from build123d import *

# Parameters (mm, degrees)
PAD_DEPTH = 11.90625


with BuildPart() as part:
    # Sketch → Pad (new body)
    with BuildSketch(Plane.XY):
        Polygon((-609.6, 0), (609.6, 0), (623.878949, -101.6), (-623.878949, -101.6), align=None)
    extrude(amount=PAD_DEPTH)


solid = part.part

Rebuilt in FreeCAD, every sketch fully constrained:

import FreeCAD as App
import Part
import Sketcher
from FreeCAD import Vector
Q = App.Units.Quantity


def add_polygon(sketch, points):
    """Adds a closed chain of lines whose ends are joined by coincident constraints."""
    first, n = sketch.GeometryCount, len(points)
    for a, b in zip(points, points[1:] + points[:1]):
        sketch.addGeometry(Part.LineSegment(App.Vector(*a, 0), App.Vector(*b, 0)), False)
    for i in range(n):
        sketch.addConstraint(Sketcher.Constraint("Coincident", first + i, 2, first + (i + 1) % n, 1))

doc = App.newDocument("Part")
body = doc.addObject("PartDesign::Body", "Body")

# Sketch on XY plane
sketch1 = body.newObject("Sketcher::SketchObject", "Sketch")
sketch1.AttachmentSupport = (doc.getObject("XY_Plane"), [""])
sketch1.MapMode = "FlatFace"
add_polygon(sketch1, [(609.6, 0), (-609.6, 0), (-623.878949, -101.6), (623.878949, -101.6)])  # lines 0-3
sketch1.addConstraint([
    Sketcher.Constraint("Horizontal", 0),
    Sketcher.Constraint("Horizontal", 2),
    Sketcher.Constraint("Symmetric", 0, 2, 3, 2, -1, 1),
    Sketcher.Constraint("Equal", 1, 3),
    Sketcher.Constraint("DistanceX", 0, 2, 0, 1, Q("48 in")),
    Sketcher.Constraint("DistanceY", 1, 2, -1, 1, Q("4 in")),
    Sketcher.Constraint("Angle", 1, Q("-98 deg")),
])
pad1 = body.newObject("PartDesign::Pad", "Pad")
pad1.Profile = sketch1
pad1.Length = Q("0.46875 in")

doc.recompute()
